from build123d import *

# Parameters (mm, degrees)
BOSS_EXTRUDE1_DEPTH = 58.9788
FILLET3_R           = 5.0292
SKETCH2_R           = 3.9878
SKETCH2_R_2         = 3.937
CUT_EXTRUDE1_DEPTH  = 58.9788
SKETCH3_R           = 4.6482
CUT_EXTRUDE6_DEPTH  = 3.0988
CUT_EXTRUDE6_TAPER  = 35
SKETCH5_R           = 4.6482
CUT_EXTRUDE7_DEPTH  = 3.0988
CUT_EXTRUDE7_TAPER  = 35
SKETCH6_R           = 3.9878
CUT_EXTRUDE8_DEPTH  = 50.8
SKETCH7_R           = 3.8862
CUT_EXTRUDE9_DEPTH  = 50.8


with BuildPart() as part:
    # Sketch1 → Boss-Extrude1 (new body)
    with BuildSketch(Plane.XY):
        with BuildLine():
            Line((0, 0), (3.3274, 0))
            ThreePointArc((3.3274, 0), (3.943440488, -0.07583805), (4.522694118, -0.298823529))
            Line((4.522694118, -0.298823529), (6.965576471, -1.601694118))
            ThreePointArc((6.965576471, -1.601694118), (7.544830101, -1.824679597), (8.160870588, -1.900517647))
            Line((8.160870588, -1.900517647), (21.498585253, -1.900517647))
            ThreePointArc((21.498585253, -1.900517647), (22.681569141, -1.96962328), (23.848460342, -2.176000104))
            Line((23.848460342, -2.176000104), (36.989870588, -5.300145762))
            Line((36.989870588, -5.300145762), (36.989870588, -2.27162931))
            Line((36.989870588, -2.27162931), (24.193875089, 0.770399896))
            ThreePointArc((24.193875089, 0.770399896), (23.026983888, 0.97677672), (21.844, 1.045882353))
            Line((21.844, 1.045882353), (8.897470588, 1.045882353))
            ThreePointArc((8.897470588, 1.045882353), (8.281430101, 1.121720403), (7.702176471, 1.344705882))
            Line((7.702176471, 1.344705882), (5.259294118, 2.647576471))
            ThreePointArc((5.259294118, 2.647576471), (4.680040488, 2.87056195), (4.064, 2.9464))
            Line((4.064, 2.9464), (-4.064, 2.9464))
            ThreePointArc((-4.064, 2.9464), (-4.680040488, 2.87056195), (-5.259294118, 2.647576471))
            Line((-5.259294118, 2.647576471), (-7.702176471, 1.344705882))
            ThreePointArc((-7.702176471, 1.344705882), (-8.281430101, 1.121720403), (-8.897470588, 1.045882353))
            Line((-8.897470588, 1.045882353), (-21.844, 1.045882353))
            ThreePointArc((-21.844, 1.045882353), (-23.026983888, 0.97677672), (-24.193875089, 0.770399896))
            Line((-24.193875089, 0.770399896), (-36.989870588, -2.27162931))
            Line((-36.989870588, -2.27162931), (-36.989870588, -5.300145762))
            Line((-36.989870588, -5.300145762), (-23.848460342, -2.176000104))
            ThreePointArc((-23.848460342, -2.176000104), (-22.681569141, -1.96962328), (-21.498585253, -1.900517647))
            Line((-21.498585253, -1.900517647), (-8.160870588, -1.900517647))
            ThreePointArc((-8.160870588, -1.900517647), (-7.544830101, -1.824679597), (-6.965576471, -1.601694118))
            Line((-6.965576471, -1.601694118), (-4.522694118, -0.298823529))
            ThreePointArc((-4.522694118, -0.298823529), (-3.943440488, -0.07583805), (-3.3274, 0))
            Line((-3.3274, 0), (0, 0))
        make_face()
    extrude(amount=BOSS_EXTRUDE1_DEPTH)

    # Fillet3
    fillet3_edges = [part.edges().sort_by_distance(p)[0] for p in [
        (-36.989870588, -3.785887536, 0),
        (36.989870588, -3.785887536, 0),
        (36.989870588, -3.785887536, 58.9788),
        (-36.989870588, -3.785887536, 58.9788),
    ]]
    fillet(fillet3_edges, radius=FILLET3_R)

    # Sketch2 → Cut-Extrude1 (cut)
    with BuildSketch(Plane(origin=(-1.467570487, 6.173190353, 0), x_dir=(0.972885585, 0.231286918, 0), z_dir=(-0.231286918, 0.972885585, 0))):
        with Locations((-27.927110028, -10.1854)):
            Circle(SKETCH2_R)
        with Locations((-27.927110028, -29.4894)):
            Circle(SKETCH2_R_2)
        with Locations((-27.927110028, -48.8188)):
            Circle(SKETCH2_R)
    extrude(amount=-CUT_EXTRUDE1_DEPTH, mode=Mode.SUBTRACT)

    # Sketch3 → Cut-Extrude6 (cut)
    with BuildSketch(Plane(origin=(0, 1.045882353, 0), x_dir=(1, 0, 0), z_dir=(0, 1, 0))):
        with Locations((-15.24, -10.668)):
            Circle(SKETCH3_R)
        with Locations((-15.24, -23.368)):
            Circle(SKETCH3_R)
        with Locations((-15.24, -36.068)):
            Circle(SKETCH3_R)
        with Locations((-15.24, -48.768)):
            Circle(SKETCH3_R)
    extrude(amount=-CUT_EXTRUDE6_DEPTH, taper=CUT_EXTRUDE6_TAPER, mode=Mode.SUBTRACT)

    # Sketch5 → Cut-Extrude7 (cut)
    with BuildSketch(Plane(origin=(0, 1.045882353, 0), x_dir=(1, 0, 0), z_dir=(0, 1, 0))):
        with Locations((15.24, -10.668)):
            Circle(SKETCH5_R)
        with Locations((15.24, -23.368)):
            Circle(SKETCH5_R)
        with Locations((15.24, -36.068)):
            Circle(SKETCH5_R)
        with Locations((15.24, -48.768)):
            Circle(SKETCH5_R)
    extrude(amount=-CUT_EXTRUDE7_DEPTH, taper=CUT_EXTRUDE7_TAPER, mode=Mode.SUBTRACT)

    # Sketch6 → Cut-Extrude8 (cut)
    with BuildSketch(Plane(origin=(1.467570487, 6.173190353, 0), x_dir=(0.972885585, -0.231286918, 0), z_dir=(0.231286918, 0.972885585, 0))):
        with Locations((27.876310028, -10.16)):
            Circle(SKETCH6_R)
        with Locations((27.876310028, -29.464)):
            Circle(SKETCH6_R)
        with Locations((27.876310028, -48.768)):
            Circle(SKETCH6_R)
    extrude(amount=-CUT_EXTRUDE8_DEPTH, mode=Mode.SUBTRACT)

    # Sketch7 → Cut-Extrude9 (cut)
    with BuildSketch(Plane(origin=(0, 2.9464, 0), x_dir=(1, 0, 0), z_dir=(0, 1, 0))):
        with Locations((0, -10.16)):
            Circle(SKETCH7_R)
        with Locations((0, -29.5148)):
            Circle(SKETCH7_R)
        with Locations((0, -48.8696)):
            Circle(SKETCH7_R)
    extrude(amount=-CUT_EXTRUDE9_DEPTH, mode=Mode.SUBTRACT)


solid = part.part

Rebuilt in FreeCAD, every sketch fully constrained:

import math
import FreeCAD as App
import Part
import Sketcher
Q = App.Units.Quantity


def edges_at(feature, points):
    """Names of the edges that pass closest to the given points."""
    edges = feature.Shape.Edges
    near = lambda p: min(range(len(edges)), key=lambda i: edges[i].distToShape(Part.Vertex(*p))[0])
    return sorted({f"Edge{near(p) + 1}" for p in points})

doc = App.newDocument("Part")
body = doc.addObject("PartDesign::Body", "Body")

# Sketch on XY plane
sketch1 = body.newObject("Sketcher::SketchObject", "Sketch")
sketch1.AttachmentSupport = (doc.getObject("XY_Plane"), [""])
sketch1.MapMode = "FlatFace"
sketch1.addGeometry(Part.ArcOfCircle(Part.Circle(App.Vector(3.3, -2.5, 0), App.Vector(0, 0, 1), 2.5), math.radians(62), math.radians(90)), False)
sketch1.addGeometry(Part.LineSegment(App.Vector(4.5, -0.3, 0), App.Vector(7, -1.6, 0)), False)
sketch1.addGeometry(Part.ArcOfCircle(Part.Circle(App.Vector(8.2, 0.6, 0), App.Vector(0, 0, 1), 2.5), math.radians(-118), math.radians(-90)), False)
sketch1.addGeometry(Part.LineSegment(App.Vector(8.2, -1.9, 0), App.Vector(21.5, -1.9, 0)), False)
sketch1.addGeometry(Part.ArcOfCircle(Part.Circle(App.Vector(21.5, -12.1, 0), App.Vector(0, 0, 1), 10.2), math.radians(76.63), math.radians(90)), False)
sketch1.addGeometry(Part.LineSegment(App.Vector(23.8, -2.2, 0), App.Vector(37, -5.3, 0)), False)
sketch1.addGeometry(Part.LineSegment(App.Vector(37, -5.3, 0), App.Vector(37, -2.3, 0)), False)
sketch1.addGeometry(Part.LineSegment(App.Vector(37, -2.3, 0), App.Vector(24.2, 0.8, 0)), False)
sketch1.addGeometry(Part.ArcOfCircle(Part.Circle(App.Vector(21.8, -9.1, 0), App.Vector(0, 0, 1), 10.2), math.radians(76.63), math.radians(90)), False)
sketch1.addGeometry(Part.LineSegment(App.Vector(21.8, 1, 0), App.Vector(8.9, 1, 0)), False)
sketch1.addGeometry(Part.ArcOfCircle(Part.Circle(App.Vector(8.9, 3.6, 0), App.Vector(0, 0, 1), 2.5), math.radians(-118), math.radians(-90)), False)
sketch1.addGeometry(Part.LineSegment(App.Vector(7.7, 1.3, 0), App.Vector(5.3, 2.6, 0)), False)
sketch1.addGeometry(Part.ArcOfCircle(Part.Circle(App.Vector(4.1, 0.4, 0), App.Vector(0, 0, 1), 2.5), math.radians(62), math.radians(90)), False)
sketch1.addGeometry(Part.LineSegment(App.Vector(4.1, 2.9, 0), App.Vector(-4.1, 2.9, 0)), False)
sketch1.addGeometry(Part.ArcOfCircle(Part.Circle(App.Vector(-4.1, 0.4, 0), App.Vector(0, 0, 1), 2.5), math.radians(90), math.radians(118)), False)
sketch1.addGeometry(Part.LineSegment(App.Vector(-5.3, 2.6, 0), App.Vector(-7.7, 1.3, 0)), False)
sketch1.addGeometry(Part.ArcOfCircle(Part.Circle(App.Vector(-8.9, 3.6, 0), App.Vector(0, 0, 1), 2.5), math.radians(-90), math.radians(-62)), False)
sketch1.addGeometry(Part.LineSegment(App.Vector(-8.9, 1, 0), App.Vector(-21.8, 1, 0)), False)
sketch1.addGeometry(Part.ArcOfCircle(Part.Circle(App.Vector(-21.8, -9.1, 0), App.Vector(0, 0, 1), 10.2), math.radians(90), math.radians(103.37)), False)
sketch1.addGeometry(Part.LineSegment(App.Vector(-24.2, 0.8, 0), App.Vector(-37, -2.3, 0)), False)
sketch1.addGeometry(Part.LineSegment(App.Vector(-37, -2.3, 0), App.Vector(-37, -5.3, 0)), False)
sketch1.addGeometry(Part.LineSegment(App.Vector(-37, -5.3, 0), App.Vector(-23.8, -2.2, 0)), False)
sketch1.addGeometry(Part.ArcOfCircle(Part.Circle(App.Vector(-21.5, -12.1, 0), App.Vector(0, 0, 1), 10.2), math.radians(90), math.radians(103.37)), False)
sketch1.addGeometry(Part.LineSegment(App.Vector(-21.5, -1.9, 0), App.Vector(-8.2, -1.9, 0)), False)
sketch1.addGeometry(Part.ArcOfCircle(Part.Circle(App.Vector(-8.2, 0.6, 0), App.Vector(0, 0, 1), 2.5), math.radians(-90), math.radians(-62)), False)
sketch1.addGeometry(Part.LineSegment(App.Vector(-7, -1.6, 0), App.Vector(-4.5, -0.3, 0)), False)
sketch1.addGeometry(Part.ArcOfCircle(Part.Circle(App.Vector(-3.3, -2.5, 0), App.Vector(0, 0, 1), 2.5), math.radians(90), math.radians(118)), False)
sketch1.addGeometry(Part.LineSegment(App.Vector(-3.3, 0, 0), App.Vector(3.3, 0, 0)), False)
sketch1.addConstraint(Sketcher.Constraint("Tangent", 0, 1, 1, 1))
sketch1.addConstraint(Sketcher.Constraint("Tangent", 1, 2, 2, 1))
sketch1.addConstraint(Sketcher.Constraint("Tangent", 2, 2, 3, 1))
sketch1.addConstraint(Sketcher.Constraint("Tangent", 3, 2, 4, 2))
sketch1.addConstraint(Sketcher.Constraint("Tangent", 4, 1, 5, 1))
sketch1.addConstraint(Sketcher.Constraint("Coincident", 5, 2, 6, 1))
sketch1.addConstraint(Sketcher.Constraint("Coincident", 6, 2, 7, 1))
sketch1.addConstraint(Sketcher.Constraint("Tangent", 7, 2, 8, 1))
sketch1.addConstraint(Sketcher.Constraint("Tangent", 8, 2, 9, 1))
sketch1.addConstraint(Sketcher.Constraint("Tangent", 9, 2, 10, 2))
sketch1.addConstraint(Sketcher.Constraint("Tangent", 10, 1, 11, 1))
sketch1.addConstraint(Sketcher.Constraint("Tangent", 11, 2, 12, 1))
sketch1.addConstraint(Sketcher.Constraint("Tangent", 12, 2, 13, 1))
sketch1.addConstraint(Sketcher.Constraint("Tangent", 13, 2, 14, 1))
sketch1.addConstraint(Sketcher.Constraint("Tangent", 14, 2, 15, 1))
sketch1.addConstraint(Sketcher.Constraint("Tangent", 15, 2, 16, 2))
sketch1.addConstraint(Sketcher.Constraint("Tangent", 16, 1, 17, 1))
sketch1.addConstraint(Sketcher.Constraint("Tangent", 17, 2, 18, 1))
sketch1.addConstraint(Sketcher.Constraint("Tangent", 18, 2, 19, 1))
sketch1.addConstraint(Sketcher.Constraint("Coincident", 19, 2, 20, 1))
sketch1.addConstraint(Sketcher.Constraint("Coincident", 20, 2, 21, 1))
sketch1.addConstraint(Sketcher.Constraint("Tangent", 21, 2, 22, 2))
sketch1.addConstraint(Sketcher.Constraint("Tangent", 22, 1, 23, 1))
sketch1.addConstraint(Sketcher.Constraint("Tangent", 23, 2, 24, 1))
sketch1.addConstraint(Sketcher.Constraint("Tangent", 24, 2, 25, 1))
sketch1.addConstraint(Sketcher.Constraint("Tangent", 25, 2, 26, 2))
sketch1.addConstraint(Sketcher.Constraint("Tangent", 26, 1, 27, 1))
sketch1.addConstraint(Sketcher.Constraint("Tangent", 27, 2, 0, 2))
sketch1.addConstraint(Sketcher.Constraint("Horizontal", 3))
sketch1.addConstraint(Sketcher.Constraint("Vertical", 6))
sketch1.addConstraint(Sketcher.Constraint("Horizontal", 9))
sketch1.addConstraint(Sketcher.Constraint("Horizontal", 13))
sketch1.addConstraint(Sketcher.Constraint("Horizontal", 17))
sketch1.addConstraint(Sketcher.Constraint("Vertical", 20))
sketch1.addConstraint(Sketcher.Constraint("Horizontal", 23))
sketch1.addConstraint(Sketcher.Constraint("Horizontal", 27))
sketch1.addConstraint(Sketcher.Constraint("Equal", 0, 2))
sketch1.addConstraint(Sketcher.Constraint("Equal", 4, 8))
sketch1.addConstraint(Sketcher.Constraint("Equal", 2, 10))
sketch1.addConstraint(Sketcher.Constraint("Equal", 10, 12))
sketch1.addConstraint(Sketcher.Constraint("Equal", 12, 14))
sketch1.addConstraint(Sketcher.Constraint("Equal", 14, 16))
sketch1.addConstraint(Sketcher.Constraint("Equal", 8, 18))
sketch1.addConstraint(Sketcher.Constraint("Equal", 18, 22))
sketch1.addConstraint(Sketcher.Constraint("Equal", 16, 24))
sketch1.addConstraint(Sketcher.Constraint("Equal", 24, 26))
sketch1.addConstraint(Sketcher.Constraint("Symmetric", 26, 1, 27, 2, -1, 1))
sketch1.addConstraint(Sketcher.Constraint("Symmetric", 10, 3, 16, 3, -2))
sketch1.addConstraint(Sketcher.Constraint("Symmetric", 4, 3, 22, 3, -2))
sketch1.addConstraint(Sketcher.Constraint("Symmetric", 7, 2, 18, 2, -2))
sketch1.addConstraint(Sketcher.Constraint("Symmetric", 5, 2, 20, 2, -2))
sketch1.addConstraint(Sketcher.Constraint("Parallel", 5, 7))
sketch1.addConstraint(Sketcher.Constraint("Parallel", 1, 11))
sketch1.addConstraint(Sketcher.Constraint("Parallel", 15, 25))
sketch1.addConstraint(Sketcher.Constraint("Horizontal", 11, 2, 14, 2))
sketch1.addConstraint(Sketcher.Constraint("Equal", 1, 11))
sketch1.addConstraint(Sketcher.Constraint("Radius", 0, Q("0.1 in")))
sketch1.addConstraint(Sketcher.Constraint("Radius", 4, Q("0.4 in")))
sketch1.addConstraint(Sketcher.Constraint("DistanceX", 13, 2, 13, 1, Q("0.32 in")))
sketch1.addConstraint(Sketcher.Constraint("DistanceX", 12, 3, 8, 3, Q("0.7 in")))
sketch1.addConstraint(Sketcher.Constraint("DistanceX", 27, 1, 27, 2, Q("0.262 in")))
sketch1.addConstraint(Sketcher.Constraint("Distance", 1, Q("0.109 in")))
sketch1.addConstraint(Sketcher.Constraint("DistanceY", -1, 1, 12, 3, Q("0.016 in")))
sketch1.addConstraint(Sketcher.Constraint("DistanceX", 2, 2, 5, 2, Q("1.135 in")))
sketch1.addConstraint(Sketcher.Constraint("DistanceX", 9, 2, 9, 1, Q("12.946529 mm")))
sketch1.addConstraint(Sketcher.Constraint("DistanceY", 4, 1, -1, 1, Q("2.176 mm")))
sketch1.addConstraint(Sketcher.Constraint("DistanceX", 3, 1, 3, 2, Q("13.337715 mm")))
pad1 = body.newObject("PartDesign::Pad", "Pad")
pad1.Profile = sketch1
pad1.Length = Q("2.322 in")
doc.recompute()

fillet = body.newObject("PartDesign::Fillet", "Fillet")
fillet.Base = (pad1, edges_at(pad1, [
    (-36.99, -3.786, 0),
    (36.99, -3.786, 0),
    (36.99, -3.786, 58.979),
    (-36.99, -3.786, 58.979),
]))
fillet.Radius = Q("0.198 in")

# Sketch on an angled plane
sketch2 = body.newObject("Sketcher::SketchObject", "Sketch001")
sketch2.Placement = App.Placement(App.Vector(-1.46757, 6.17319, 0), App.Rotation(App.Vector(0.972885585, 0.231286918, 0), App.Vector(0, 0, -1), App.Vector(-0.231286918, 0.972885585, 0), "ZXY"))
sketch2.addGeometry(Part.Circle(App.Vector(-27.9, -10.2, 0), App.Vector(0, 0, 1), 4), False)
sketch2.addGeometry(Part.Circle(App.Vector(-27.9, -29.5, 0), App.Vector(0, 0, 1), 3.9), False)
sketch2.addGeometry(Part.Circle(App.Vector(-27.9, -48.8, 0), App.Vector(0, 0, 1), 4), False)
sketch2.addConstraint(Sketcher.Constraint("Equal", 0, 2))
sketch2.addConstraint(Sketcher.Constraint("Vertical", 0, 3, 1, 3))
sketch2.addConstraint(Sketcher.Constraint("Vertical", 1, 3, 2, 3))
sketch2.addConstraint(Sketcher.Constraint("Diameter", 1, Q("0.31 in")))
sketch2.addConstraint(Sketcher.Constraint("Diameter", 0, Q("0.314 in")))
sketch2.addConstraint(Sketcher.Constraint("DistanceY", 1, 3, 0, 3, Q("0.76 in")))
sketch2.addConstraint(Sketcher.Constraint("DistanceY", 0, 3, -1, 1, Q("0.401 in")))
sketch2.addConstraint(Sketcher.Constraint("DistanceY", 2, 3, -1, 1, Q("1.922 in")))
sketch2.addConstraint(Sketcher.Constraint("DistanceX", 0, 3, -1, 1, Q("27.92711 mm")))
pocket1 = body.newObject("PartDesign::Pocket", "Pocket")
pocket1.Profile = sketch2
pocket1.Length = Q("2.322 in")

# Sketch on XZ plane
sketch3 = body.newObject("Sketcher::SketchObject", "Sketch002")
sketch3.AttachmentSupport = (doc.getObject("XZ_Plane"), [""])
sketch3.MapMode = "FlatFace"
sketch3.AttachmentOffset = App.Placement(App.Vector(0, 0, -1.045882), App.Rotation())
sketch3.addGeometry(Part.Circle(App.Vector(-15.2, 10.7, 0), App.Vector(0, 0, 1), 4.6), False)
sketch3.addGeometry(Part.Circle(App.Vector(-15.2, 23.4, 0), App.Vector(0, 0, 1), 4.6), False)
sketch3.addGeometry(Part.Circle(App.Vector(-15.2, 36.1, 0), App.Vector(0, 0, 1), 4.6), False)
sketch3.addGeometry(Part.Circle(App.Vector(-15.2, 48.8, 0), App.Vector(0, 0, 1), 4.6), False)
sketch3.addConstraint(Sketcher.Constraint("Equal", 0, 1))
sketch3.addConstraint(Sketcher.Constraint("Equal", 1, 2))
sketch3.addConstraint(Sketcher.Constraint("Equal", 2, 3))
sketch3.addConstraint(Sketcher.Constraint("Vertical", 0, 3, 1, 3))
sketch3.addConstraint(Sketcher.Constraint("Vertical", 1, 3, 2, 3))
sketch3.addConstraint(Sketcher.Constraint("Vertical", 2, 3, 3, 3))
sketch3.addConstraint(Sketcher.Constraint("Diameter", 0, Q("0.366 in")))
sketch3.addConstraint(Sketcher.Constraint("DistanceY", 0, 3, 2, 3, Q("1 in")))
sketch3.addConstraint(Sketcher.Constraint("DistanceY", 1, 3, 3, 3, Q("1 in")))
sketch3.addConstraint(Sketcher.Constraint("DistanceX", 0, 3, -1, 1, Q("0.6 in")))
sketch3.addConstraint(Sketcher.Constraint("DistanceY", 0, 3, 1, 3, Q("0.5 in")))
sketch3.addConstraint(Sketcher.Constraint("DistanceY", -1, 1, 0, 3, Q("0.42 in")))
pocket2 = body.newObject("PartDesign::Pocket", "Pocket001")
pocket2.Profile = sketch3
pocket2.Length = Q("0.122 in")
pocket2.Reversed = True
pocket2.TaperAngle = -35

# Sketch on XZ plane
sketch4 = body.newObject("Sketcher::SketchObject", "Sketch003")
sketch4.AttachmentSupport = (doc.getObject("XZ_Plane"), [""])
sketch4.MapMode = "FlatFace"
sketch4.AttachmentOffset = App.Placement(App.Vector(0, 0, -1.045882), App.Rotation())
sketch4.addGeometry(Part.Circle(App.Vector(15.2, 10.7, 0), App.Vector(0, 0, 1), 4.6), False)
sketch4.addGeometry(Part.Circle(App.Vector(15.2, 23.4, 0), App.Vector(0, 0, 1), 4.6), False)
sketch4.addGeometry(Part.Circle(App.Vector(15.2, 36.1, 0), App.Vector(0, 0, 1), 4.6), False)
sketch4.addGeometry(Part.Circle(App.Vector(15.2, 48.8, 0), App.Vector(0, 0, 1), 4.6), False)
sketch4.addConstraint(Sketcher.Constraint("Equal", 0, 1))
sketch4.addConstraint(Sketcher.Constraint("Equal", 1, 2))
sketch4.addConstraint(Sketcher.Constraint("Equal", 2, 3))
sketch4.addConstraint(Sketcher.Constraint("Vertical", 0, 3, 1, 3))
sketch4.addConstraint(Sketcher.Constraint("Vertical", 1, 3, 2, 3))
sketch4.addConstraint(Sketcher.Constraint("Vertical", 2, 3, 3, 3))
sketch4.addConstraint(Sketcher.Constraint("Diameter", 0, Q("0.366 in")))
sketch4.addConstraint(Sketcher.Constraint("DistanceY", 0, 3, 2, 3, Q("1 in")))
sketch4.addConstraint(Sketcher.Constraint("DistanceY", 1, 3, 3, 3, Q("1 in")))
sketch4.addConstraint(Sketcher.Constraint("DistanceX", -1, 1, 0, 3, Q("0.6 in")))
sketch4.addConstraint(Sketcher.Constraint("DistanceY", 0, 3, 1, 3, Q("0.5 in")))
sketch4.addConstraint(Sketcher.Constraint("DistanceY", -1, 1, 0, 3, Q("0.42 in")))
pocket3 = body.newObject("PartDesign::Pocket", "Pocket002")
pocket3.Profile = sketch4
pocket3.Length = Q("0.122 in")
pocket3.Reversed = True
pocket3.TaperAngle = -35

# Sketch on an angled plane
sketch5 = body.newObject("Sketcher::SketchObject", "Sketch004")
sketch5.Placement = App.Placement(App.Vector(1.46757, 6.17319, 0), App.Rotation(App.Vector(0.972885585, -0.231286918, 0), App.Vector(0, 0, -1), App.Vector(0.231286918, 0.972885585, 0), "ZXY"))
sketch5.addGeometry(Part.Circle(App.Vector(27.9, -10.2, 0), App.Vector(0, 0, 1), 4), False)
sketch5.addGeometry(Part.Circle(App.Vector(27.9, -29.5, 0), App.Vector(0, 0, 1), 4), False)
sketch5.addGeometry(Part.Circle(App.Vector(27.9, -48.8, 0), App.Vector(0, 0, 1), 4), False)
sketch5.addConstraint(Sketcher.Constraint("Equal", 0, 1))
sketch5.addConstraint(Sketcher.Constraint("Equal", 1, 2))
sketch5.addConstraint(Sketcher.Constraint("Vertical", 0, 3, 1, 3))
sketch5.addConstraint(Sketcher.Constraint("Vertical", 1, 3, 2, 3))
sketch5.addConstraint(Sketcher.Constraint("Diameter", 0, Q("0.314 in")))
sketch5.addConstraint(Sketcher.Constraint("DistanceY", 0, 3, -1, 1, Q("0.4 in")))
sketch5.addConstraint(Sketcher.Constraint("DistanceY", 1, 3, -1, 1, Q("1.16 in")))
sketch5.addConstraint(Sketcher.Constraint("DistanceY", 2, 3, -1, 1, Q("1.92 in")))
sketch5.addConstraint(Sketcher.Constraint("DistanceX", -1, 1, 0, 3, Q("27.87631 mm")))
pocket4 = body.newObject("PartDesign::Pocket", "Pocket003")
pocket4.Profile = sketch5
pocket4.Length = Q("2 in")

# Sketch on XZ plane
sketch6 = body.newObject("Sketcher::SketchObject", "Sketch005")
sketch6.AttachmentSupport = (doc.getObject("XZ_Plane"), [""])
sketch6.MapMode = "FlatFace"
sketch6.AttachmentOffset = App.Placement(App.Vector(0, 0, -0.116 * 25.4), App.Rotation())
sketch6.addGeometry(Part.Circle(App.Vector(0, 10.2, 0), App.Vector(0, 0, 1), 3.9), False)
sketch6.addGeometry(Part.Circle(App.Vector(0, 29.5, 0), App.Vector(0, 0, 1), 3.9), False)
sketch6.addGeometry(Part.Circle(App.Vector(0, 48.9, 0), App.Vector(0, 0, 1), 3.9), False)
sketch6.addConstraint(Sketcher.Constraint("Equal", 0, 1))
sketch6.addConstraint(Sketcher.Constraint("Equal", 1, 2))
sketch6.addConstraint(Sketcher.Constraint("PointOnObject", 0, 3, -2))
sketch6.addConstraint(Sketcher.Constraint("PointOnObject", 1, 3, -2))
sketch6.addConstraint(Sketcher.Constraint("PointOnObject", 2, 3, -2))
sketch6.addConstraint(Sketcher.Constraint("Diameter", 0, Q("0.306 in")))
sketch6.addConstraint(Sketcher.Constraint("DistanceY", -1, 1, 0, 3, Q("0.4 in")))
sketch6.addConstraint(Sketcher.Constraint("DistanceY", -1, 1, 1, 3, Q("1.162 in")))
sketch6.addConstraint(Sketcher.Constraint("DistanceY", -1, 1, 2, 3, Q("1.924 in")))
pocket5 = body.newObject("PartDesign::Pocket", "Pocket004")
pocket5.Profile = sketch6
pocket5.Length = Q("2 in")
pocket5.Reversed = True

doc.recompute()
